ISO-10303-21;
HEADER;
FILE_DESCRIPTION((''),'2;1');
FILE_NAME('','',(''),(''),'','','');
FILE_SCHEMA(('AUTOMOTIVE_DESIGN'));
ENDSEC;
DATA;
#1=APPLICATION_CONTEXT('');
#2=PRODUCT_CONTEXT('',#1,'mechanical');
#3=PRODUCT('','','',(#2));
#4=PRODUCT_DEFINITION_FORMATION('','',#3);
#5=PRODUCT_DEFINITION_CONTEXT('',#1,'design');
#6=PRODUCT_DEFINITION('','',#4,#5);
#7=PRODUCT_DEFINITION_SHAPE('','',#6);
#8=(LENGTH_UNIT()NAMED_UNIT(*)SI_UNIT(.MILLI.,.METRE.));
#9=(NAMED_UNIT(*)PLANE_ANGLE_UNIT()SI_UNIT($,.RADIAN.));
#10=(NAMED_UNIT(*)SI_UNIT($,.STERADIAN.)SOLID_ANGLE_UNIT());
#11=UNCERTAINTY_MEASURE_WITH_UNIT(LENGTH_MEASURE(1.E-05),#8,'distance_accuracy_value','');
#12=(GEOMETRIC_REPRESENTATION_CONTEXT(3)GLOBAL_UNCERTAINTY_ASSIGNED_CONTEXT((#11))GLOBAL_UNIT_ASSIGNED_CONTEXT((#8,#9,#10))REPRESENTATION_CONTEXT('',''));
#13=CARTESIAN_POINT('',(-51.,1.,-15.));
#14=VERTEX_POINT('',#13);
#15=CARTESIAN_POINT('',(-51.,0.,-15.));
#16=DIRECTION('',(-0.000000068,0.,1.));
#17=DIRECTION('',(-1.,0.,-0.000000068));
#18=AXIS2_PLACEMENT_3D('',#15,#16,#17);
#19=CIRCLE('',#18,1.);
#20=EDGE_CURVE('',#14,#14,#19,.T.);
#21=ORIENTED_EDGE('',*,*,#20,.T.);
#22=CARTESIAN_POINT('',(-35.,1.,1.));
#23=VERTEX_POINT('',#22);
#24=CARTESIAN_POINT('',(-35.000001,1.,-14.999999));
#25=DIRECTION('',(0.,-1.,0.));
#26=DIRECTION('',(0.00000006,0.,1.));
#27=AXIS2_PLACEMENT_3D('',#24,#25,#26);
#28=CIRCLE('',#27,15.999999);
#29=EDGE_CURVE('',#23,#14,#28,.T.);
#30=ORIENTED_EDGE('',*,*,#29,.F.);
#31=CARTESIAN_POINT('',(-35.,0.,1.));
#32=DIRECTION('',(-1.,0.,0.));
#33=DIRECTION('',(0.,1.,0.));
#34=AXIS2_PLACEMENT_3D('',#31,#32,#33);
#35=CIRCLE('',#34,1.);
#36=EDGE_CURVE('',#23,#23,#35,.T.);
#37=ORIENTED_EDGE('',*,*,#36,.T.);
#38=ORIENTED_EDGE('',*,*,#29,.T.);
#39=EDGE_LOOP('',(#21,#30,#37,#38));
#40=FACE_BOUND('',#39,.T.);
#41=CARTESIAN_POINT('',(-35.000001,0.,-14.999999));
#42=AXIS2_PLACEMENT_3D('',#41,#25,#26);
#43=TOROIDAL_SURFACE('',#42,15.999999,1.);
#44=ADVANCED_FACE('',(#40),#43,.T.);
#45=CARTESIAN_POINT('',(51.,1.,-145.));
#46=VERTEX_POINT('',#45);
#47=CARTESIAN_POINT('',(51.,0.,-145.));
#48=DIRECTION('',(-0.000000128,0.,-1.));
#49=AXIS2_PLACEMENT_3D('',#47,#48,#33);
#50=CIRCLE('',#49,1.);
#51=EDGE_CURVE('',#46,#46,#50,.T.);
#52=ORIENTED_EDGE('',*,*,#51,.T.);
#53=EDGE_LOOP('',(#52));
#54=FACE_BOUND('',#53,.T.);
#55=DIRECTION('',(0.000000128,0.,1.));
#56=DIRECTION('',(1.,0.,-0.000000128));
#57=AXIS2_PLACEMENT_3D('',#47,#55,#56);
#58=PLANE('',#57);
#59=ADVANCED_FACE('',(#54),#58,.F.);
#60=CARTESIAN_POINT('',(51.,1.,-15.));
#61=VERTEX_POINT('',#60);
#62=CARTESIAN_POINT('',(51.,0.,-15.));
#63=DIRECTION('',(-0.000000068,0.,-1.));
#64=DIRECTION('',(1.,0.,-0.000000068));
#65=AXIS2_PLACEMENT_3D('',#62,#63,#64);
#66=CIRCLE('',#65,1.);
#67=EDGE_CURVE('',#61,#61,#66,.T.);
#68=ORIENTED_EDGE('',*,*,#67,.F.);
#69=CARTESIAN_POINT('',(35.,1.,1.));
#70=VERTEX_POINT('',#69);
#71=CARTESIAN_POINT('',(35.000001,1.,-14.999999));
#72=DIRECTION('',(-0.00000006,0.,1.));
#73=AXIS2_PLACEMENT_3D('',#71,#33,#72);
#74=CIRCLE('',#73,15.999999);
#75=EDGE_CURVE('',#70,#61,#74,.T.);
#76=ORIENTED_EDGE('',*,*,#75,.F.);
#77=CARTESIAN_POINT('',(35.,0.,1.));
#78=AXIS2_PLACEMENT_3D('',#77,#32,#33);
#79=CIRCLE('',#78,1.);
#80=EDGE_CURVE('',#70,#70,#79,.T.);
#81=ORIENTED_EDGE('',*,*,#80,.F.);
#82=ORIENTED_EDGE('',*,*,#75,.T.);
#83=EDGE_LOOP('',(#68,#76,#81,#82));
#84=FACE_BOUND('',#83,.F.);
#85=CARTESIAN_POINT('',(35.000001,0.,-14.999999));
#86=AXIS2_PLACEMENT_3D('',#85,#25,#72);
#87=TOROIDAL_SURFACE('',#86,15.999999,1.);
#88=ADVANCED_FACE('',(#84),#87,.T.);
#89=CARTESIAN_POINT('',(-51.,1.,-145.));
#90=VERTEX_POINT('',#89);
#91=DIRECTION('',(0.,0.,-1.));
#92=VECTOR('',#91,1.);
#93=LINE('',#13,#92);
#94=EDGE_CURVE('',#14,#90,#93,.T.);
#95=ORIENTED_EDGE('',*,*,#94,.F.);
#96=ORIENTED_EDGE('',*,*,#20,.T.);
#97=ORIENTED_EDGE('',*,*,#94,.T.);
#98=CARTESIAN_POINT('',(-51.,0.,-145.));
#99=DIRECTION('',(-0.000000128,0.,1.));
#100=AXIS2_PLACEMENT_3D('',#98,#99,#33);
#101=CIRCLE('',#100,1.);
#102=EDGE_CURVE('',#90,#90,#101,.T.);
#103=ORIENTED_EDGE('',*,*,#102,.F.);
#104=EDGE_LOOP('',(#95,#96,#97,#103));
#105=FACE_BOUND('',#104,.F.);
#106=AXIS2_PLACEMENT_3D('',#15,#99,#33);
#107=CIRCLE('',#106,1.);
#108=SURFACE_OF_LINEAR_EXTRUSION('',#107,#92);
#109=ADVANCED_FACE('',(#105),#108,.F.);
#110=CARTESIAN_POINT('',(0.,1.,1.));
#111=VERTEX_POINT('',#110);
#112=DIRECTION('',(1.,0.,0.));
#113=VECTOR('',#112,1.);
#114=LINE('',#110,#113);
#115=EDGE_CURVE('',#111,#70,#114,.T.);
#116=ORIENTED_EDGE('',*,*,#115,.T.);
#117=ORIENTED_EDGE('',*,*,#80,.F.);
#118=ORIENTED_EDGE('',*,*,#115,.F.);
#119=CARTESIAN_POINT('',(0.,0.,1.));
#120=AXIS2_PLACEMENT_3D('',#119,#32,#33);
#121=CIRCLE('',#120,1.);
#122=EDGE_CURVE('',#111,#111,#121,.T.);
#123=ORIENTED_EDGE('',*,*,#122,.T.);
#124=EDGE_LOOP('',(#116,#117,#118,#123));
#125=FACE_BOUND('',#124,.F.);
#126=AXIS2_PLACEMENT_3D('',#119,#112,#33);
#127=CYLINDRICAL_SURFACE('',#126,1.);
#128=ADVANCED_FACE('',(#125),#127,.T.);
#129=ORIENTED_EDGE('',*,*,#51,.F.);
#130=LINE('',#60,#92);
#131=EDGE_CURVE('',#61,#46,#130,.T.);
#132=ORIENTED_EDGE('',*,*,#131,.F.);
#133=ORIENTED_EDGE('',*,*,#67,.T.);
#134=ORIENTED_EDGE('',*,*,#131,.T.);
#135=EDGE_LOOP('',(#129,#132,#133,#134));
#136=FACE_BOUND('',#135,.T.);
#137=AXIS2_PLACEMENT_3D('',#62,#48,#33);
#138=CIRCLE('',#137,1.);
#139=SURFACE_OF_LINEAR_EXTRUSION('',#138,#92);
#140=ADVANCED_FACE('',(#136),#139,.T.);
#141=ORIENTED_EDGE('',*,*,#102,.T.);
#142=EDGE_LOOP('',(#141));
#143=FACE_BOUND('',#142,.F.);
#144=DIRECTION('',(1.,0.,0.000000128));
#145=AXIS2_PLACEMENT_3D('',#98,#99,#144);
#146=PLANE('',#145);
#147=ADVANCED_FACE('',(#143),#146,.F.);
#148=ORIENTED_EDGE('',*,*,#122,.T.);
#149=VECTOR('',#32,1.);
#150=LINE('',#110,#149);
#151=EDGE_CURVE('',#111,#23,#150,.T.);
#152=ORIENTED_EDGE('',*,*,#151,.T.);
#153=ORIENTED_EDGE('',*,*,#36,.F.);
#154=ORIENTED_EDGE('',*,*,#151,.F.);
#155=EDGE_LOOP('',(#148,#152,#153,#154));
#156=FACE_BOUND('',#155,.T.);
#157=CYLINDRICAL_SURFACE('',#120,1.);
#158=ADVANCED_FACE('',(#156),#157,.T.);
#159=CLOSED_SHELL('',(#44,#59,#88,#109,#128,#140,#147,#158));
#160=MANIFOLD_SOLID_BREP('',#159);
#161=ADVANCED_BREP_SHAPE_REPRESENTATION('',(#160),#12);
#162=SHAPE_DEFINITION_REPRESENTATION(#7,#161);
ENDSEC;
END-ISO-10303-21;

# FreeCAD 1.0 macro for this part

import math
import FreeCAD as App
import Part
import Sketcher
Q = App.Units.Quantity

doc = App.newDocument("Part")
body = doc.addObject("PartDesign::Body", "Body")

# Sketch on YZ plane
sketch1 = doc.addObject("Sketcher::SketchObject", "Sketch")
body.addObject(sketch1)
sketch1.AttachmentSupport = (doc.YZ_Plane, [""])
sketch1.MapMode = "FlatFace"
sketch1.addGeometry(Part.Circle(App.Vector(0, 1, 0), App.Vector(0, 0, 1), 1), False)
sketch1.addConstraint([
    Sketcher.Constraint("PointOnObject", 0, 3, -2),
    Sketcher.Constraint("Diameter", 0, Q("2 mm")),
    Sketcher.Constraint("DistanceY", -1, 1, 0, 3, Q("1 mm")),
])

# Sketch on XZ plane
sketch2 = doc.addObject("Sketcher::SketchObject", "Sketch001")
body.addObject(sketch2)
sketch2.AttachmentSupport = (doc.XZ_Plane, [""])
sketch2.MapMode = "FlatFace"
sketch2.addGeometry([
    Part.LineSegment(App.Vector(0, 0, 0), App.Vector(-35, 0, 0)),
    Part.ArcOfCircle(Part.Circle(App.Vector(-35, -15, 0), App.Vector(0, 0, 1), 15), math.radians(90), math.radians(180)),
    Part.LineSegment(App.Vector(-50, -15, 0), App.Vector(-50, -145, 0)),
], False)
sketch2.addConstraint([
    Sketcher.Constraint("Tangent", 0, 2, 1, 1),
    Sketcher.Constraint("Tangent", 1, 2, 2, 1),
    Sketcher.Constraint("Horizontal", 0),
    Sketcher.Constraint("Vertical", 2),
    Sketcher.Constraint("Coincident", 0, 1, -1, 1),
    Sketcher.Constraint("Radius", 1, Q("14.999999 mm")),
    Sketcher.Constraint("DistanceX", 0, 2, 0, 1, Q("35 mm")),
    Sketcher.Constraint("DistanceY", 2, 2, 2, 1, Q("130 mm")),
])
doc.recompute()

additivepipe = doc.addObject("PartDesign::AdditivePipe", "AdditivePipe")
body.addObject(additivepipe)
additivepipe.Profile = sketch1
additivepipe.Spine = (sketch2, ["Edge1", "Edge2", "Edge3"])
body2 = doc.addObject("PartDesign::Body", "Body001")
doc.recompute()

body2.BaseFeature = body
doc.recompute()

mirroring = doc.addObject("Part::Mirroring", "Mirroring")
mirroring.Source = body
mirroring.Base = App.Vector(0, 0, 0)
mirroring.Normal = App.Vector(1, 0, 0)
body3 = doc.addObject("PartDesign::Body", "Body002")
body3.BaseFeature = mirroring
boolean = doc.addObject("PartDesign::Boolean", "Boolean")
body2.addObject(boolean)
boolean.Type = "Fuse"
boolean.addObjects([body3])
doc.recompute()
mirroring.Visibility = False

doc.recompute()
